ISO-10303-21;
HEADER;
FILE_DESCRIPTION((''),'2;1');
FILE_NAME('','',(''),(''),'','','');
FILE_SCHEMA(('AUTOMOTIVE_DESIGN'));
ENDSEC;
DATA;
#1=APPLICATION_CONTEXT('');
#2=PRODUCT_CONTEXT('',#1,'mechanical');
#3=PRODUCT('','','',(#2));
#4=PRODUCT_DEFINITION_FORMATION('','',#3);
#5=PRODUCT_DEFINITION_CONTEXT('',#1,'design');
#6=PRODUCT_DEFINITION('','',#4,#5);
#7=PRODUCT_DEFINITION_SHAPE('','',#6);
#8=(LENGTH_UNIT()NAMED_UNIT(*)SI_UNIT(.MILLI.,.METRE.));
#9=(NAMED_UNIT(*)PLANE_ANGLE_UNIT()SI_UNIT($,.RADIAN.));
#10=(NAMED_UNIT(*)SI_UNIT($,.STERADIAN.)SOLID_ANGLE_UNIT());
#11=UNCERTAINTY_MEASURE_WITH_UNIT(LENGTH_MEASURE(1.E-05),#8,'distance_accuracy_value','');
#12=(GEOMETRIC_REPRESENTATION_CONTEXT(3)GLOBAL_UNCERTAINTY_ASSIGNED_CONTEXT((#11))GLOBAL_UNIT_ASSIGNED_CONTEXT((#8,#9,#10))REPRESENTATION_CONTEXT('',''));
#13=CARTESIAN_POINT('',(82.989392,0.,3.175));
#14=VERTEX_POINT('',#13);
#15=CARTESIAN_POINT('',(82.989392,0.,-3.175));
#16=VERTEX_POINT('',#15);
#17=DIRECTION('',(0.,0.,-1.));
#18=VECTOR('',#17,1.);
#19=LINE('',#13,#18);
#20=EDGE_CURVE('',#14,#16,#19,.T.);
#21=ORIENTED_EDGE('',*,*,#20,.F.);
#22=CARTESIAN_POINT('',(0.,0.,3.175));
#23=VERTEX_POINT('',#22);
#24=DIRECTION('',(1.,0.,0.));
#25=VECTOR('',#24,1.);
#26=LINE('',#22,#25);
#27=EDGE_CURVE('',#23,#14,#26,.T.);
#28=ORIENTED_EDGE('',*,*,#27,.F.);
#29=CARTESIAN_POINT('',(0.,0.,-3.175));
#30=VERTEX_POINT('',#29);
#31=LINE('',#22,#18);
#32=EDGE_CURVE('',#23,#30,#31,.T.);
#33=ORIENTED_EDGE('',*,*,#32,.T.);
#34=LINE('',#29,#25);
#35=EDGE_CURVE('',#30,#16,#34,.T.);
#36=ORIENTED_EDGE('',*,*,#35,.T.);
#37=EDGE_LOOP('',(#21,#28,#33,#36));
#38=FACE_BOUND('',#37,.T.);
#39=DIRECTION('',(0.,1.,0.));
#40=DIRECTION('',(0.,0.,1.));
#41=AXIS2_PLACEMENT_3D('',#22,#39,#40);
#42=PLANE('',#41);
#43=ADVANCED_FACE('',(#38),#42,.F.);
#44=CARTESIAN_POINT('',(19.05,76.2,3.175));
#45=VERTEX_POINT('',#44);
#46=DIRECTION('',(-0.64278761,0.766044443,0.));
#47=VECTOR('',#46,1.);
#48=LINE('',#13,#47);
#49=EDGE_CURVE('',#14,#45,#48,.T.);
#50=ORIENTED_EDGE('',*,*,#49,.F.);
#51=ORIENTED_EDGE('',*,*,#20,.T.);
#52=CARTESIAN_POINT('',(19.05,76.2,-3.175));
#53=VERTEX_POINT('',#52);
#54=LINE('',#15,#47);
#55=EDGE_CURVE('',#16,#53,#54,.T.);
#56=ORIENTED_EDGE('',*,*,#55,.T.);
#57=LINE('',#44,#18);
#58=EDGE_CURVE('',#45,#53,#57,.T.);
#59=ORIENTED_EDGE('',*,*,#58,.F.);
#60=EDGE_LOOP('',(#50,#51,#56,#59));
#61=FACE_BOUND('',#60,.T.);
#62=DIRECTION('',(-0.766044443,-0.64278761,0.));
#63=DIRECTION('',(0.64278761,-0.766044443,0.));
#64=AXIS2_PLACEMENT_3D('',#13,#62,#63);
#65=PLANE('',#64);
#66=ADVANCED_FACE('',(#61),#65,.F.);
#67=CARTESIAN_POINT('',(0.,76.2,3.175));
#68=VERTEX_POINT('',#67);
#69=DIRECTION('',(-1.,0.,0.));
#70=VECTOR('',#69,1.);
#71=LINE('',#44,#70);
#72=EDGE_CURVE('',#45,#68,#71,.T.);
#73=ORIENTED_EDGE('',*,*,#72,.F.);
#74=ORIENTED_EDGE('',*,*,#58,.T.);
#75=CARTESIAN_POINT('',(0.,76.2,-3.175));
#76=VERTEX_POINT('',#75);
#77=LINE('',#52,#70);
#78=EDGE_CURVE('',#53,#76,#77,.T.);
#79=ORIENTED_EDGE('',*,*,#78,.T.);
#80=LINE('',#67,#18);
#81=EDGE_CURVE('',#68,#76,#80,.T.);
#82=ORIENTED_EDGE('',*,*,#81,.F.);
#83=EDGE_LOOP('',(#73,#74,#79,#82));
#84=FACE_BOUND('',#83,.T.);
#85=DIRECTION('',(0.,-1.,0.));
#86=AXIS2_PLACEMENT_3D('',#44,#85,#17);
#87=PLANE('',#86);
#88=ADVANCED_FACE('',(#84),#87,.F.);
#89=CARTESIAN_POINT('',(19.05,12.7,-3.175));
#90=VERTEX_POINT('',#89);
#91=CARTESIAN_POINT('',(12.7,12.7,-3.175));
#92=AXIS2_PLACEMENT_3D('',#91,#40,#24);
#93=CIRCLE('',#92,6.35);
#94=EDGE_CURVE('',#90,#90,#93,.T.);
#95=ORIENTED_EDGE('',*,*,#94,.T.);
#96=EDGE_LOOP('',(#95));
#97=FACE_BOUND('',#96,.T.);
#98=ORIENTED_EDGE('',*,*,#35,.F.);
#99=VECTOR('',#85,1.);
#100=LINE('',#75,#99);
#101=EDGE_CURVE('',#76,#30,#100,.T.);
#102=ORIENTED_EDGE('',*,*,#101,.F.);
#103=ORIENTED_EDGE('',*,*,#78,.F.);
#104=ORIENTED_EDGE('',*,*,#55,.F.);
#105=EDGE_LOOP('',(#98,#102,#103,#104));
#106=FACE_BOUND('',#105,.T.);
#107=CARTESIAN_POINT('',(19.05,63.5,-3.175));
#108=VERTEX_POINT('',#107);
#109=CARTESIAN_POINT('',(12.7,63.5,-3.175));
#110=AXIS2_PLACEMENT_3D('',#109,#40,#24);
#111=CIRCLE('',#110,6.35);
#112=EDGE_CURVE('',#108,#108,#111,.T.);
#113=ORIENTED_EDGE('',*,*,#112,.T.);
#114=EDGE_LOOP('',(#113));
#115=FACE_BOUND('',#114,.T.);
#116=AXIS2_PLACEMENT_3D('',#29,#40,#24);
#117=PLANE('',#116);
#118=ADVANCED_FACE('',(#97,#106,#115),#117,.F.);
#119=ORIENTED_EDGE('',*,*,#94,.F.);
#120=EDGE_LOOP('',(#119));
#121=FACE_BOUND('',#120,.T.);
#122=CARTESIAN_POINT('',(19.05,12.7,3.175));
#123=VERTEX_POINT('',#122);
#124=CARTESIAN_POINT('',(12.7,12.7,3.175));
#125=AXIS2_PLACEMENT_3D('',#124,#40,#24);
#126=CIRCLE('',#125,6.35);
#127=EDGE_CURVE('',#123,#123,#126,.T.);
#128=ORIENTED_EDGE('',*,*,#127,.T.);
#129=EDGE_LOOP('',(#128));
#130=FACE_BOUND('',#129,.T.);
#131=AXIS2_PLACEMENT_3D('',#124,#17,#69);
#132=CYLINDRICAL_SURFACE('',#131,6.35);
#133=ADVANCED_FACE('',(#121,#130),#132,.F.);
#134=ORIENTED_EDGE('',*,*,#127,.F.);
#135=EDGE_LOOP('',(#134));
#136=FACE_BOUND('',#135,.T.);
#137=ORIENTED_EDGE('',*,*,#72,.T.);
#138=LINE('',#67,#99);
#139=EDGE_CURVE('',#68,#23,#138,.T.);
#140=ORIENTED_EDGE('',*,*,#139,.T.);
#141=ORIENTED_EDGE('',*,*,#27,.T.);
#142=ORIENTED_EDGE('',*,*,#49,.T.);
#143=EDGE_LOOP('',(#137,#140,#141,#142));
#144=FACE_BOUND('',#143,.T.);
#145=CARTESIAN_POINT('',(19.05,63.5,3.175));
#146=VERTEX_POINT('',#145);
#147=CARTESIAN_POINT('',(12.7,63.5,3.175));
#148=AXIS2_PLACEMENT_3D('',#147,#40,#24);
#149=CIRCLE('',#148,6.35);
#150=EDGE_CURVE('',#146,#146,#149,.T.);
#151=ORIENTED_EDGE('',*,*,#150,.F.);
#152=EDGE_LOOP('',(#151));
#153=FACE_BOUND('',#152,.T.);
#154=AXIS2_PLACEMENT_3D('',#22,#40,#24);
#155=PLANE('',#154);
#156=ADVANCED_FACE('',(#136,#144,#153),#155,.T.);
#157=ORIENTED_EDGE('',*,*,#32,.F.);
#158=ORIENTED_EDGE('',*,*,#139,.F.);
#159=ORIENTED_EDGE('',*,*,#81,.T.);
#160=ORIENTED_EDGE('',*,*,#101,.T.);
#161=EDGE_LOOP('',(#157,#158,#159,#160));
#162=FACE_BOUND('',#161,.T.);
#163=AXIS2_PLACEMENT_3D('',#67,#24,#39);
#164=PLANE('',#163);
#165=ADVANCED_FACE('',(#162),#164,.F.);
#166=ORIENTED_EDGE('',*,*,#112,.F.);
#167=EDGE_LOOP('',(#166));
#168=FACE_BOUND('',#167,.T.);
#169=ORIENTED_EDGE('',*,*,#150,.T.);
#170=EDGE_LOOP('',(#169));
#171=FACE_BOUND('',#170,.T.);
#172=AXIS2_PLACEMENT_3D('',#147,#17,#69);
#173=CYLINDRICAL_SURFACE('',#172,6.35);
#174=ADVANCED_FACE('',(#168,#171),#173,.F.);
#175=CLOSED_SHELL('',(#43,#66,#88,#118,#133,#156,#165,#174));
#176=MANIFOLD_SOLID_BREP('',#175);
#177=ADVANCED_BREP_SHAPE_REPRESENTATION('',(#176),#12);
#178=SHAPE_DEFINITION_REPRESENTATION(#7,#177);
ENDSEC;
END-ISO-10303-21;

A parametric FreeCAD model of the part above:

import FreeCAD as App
import Part
import Sketcher

V = App.Vector
Q = App.Units.Quantity

doc = App.newDocument("Part")
body = doc.addObject("PartDesign::Body", "Body")

# Sketch on XY plane
sketch1 = body.newObject("Sketcher::SketchObject", "Sketch")
sketch1.AttachmentSupport = (doc.getObject("XY_Plane"), [""])
sketch1.MapMode = "FlatFace"
sketch1.addGeometry([
    Part.LineSegment(V(0, 0, 0), V(82.989392, 0, 0)),  # 0
    Part.LineSegment(V(82.989392, 0, 0), V(19.05, 76.2, 0)),  # 1
    Part.LineSegment(V(19.05, 76.2, 0), V(0, 76.2, 0)),  # 2
    Part.LineSegment(V(0, 76.2, 0), V(0, 0, 0)),  # 3
    Part.Circle(V(12.7, 12.7, 0), V(0, 0, 1), 6.35),  # 4
    Part.Circle(V(12.7, 63.5, 0), V(0, 0, 1), 6.35),  # 5
], False)
sketch1.addConstraint([
    Sketcher.Constraint("Coincident", 0, 2, 1, 1),
    Sketcher.Constraint("Coincident", 1, 2, 2, 1),
    Sketcher.Constraint("Coincident", 2, 2, 3, 1),
    Sketcher.Constraint("Coincident", 3, 2, 0, 1),
    Sketcher.Constraint("Horizontal", 0),
    Sketcher.Constraint("Horizontal", 2),
    Sketcher.Constraint("Vertical", 3),
    Sketcher.Constraint("Coincident", 3, 2, -1, 1),
    Sketcher.Constraint("Equal", 4, 5),
    Sketcher.Constraint("Vertical", 4, 3, 5, 3),
    Sketcher.Constraint("Diameter", 4, Q("0.5 in")),
    Sketcher.Constraint("DistanceY", 3, 2, 3, 1, Q("3 in")),
    Sketcher.Constraint("Angle", 1, Q("130 deg")),
    Sketcher.Constraint("DistanceY", 4, 3, 5, 3, Q("2 in")),
    Sketcher.Constraint("DistanceX", 2, 2, 2, 1, Q("0.75 in")),
    Sketcher.Constraint("DistanceX", -1, 1, 4, 3, Q("0.5 in")),
    Sketcher.Constraint("DistanceY", -1, 1, 4, 3, Q("0.5 in")),
])
pad1 = body.newObject("PartDesign::Pad", "Pad")
pad1.Profile = sketch1
pad1.Length = Q("0.25 in")
pad1.Midplane = True

doc.recompute()
